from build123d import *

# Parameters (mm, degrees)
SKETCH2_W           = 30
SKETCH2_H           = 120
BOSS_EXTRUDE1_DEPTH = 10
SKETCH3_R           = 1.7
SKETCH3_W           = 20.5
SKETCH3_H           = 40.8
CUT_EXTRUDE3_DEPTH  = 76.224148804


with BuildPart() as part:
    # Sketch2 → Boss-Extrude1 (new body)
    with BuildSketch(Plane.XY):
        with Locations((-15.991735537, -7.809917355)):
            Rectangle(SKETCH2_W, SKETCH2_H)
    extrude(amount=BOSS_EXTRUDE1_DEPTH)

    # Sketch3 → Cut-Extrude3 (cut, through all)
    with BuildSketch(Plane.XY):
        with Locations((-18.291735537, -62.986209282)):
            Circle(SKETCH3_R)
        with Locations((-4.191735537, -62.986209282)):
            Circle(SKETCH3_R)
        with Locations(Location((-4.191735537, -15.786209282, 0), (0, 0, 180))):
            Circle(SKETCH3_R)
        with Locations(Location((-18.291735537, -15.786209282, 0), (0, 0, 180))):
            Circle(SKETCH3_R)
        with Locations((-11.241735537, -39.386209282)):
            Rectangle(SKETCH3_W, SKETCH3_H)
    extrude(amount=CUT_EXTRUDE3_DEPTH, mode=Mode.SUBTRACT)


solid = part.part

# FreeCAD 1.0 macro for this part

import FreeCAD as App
import Part
import Sketcher
from FreeCAD import Vector
Q = App.Units.Quantity

doc = App.newDocument("Part")
body = doc.addObject("PartDesign::Body", "Body")

sketch1 = body.newObject("Sketcher::SketchObject", "Sketch")
sketch1.AttachmentSupport = (doc.getObject("XY_Plane"), [""])
sketch1.MapMode = "FlatFace"
sketch1.addGeometry([
    Part.LineSegment(Vector(-31, 52, 0), Vector(-31, -68, 0)),
    Part.LineSegment(Vector(-31, -68, 0), Vector(-1, -68, 0)),
    Part.LineSegment(Vector(-1, -68, 0), Vector(-1, 52, 0)),
    Part.LineSegment(Vector(-1, 52, 0), Vector(-31, 52, 0)),
], False)
sketch1.addConstraint([
    Sketcher.Constraint("Coincident", 0, 2, 1, 1),
    Sketcher.Constraint("Coincident", 1, 2, 2, 1),
    Sketcher.Constraint("Coincident", 2, 2, 3, 1),
    Sketcher.Constraint("Coincident", 3, 2, 0, 1),
    Sketcher.Constraint("Vertical", 0),
    Sketcher.Constraint("Horizontal", 1),
    Sketcher.Constraint("Vertical", 2),
    Sketcher.Constraint("Horizontal", 3),
    Sketcher.Constraint("DistanceX", 1, 1, 1, 2, Q("30 mm")),
    Sketcher.Constraint("DistanceY", 0, 2, 0, 1, Q("120 mm")),
    Sketcher.Constraint("DistanceX", 0, 2, -1, 1, Q("30.991736 mm")),
    Sketcher.Constraint("DistanceY", 0, 2, -1, 1, Q("67.809917 mm")),
])
pad1 = body.newObject("PartDesign::Pad", "Pad")
pad1.Profile = sketch1
pad1.Length = 10

sketch2 = body.newObject("Sketcher::SketchObject", "Sketch001")
sketch2.AttachmentSupport = (doc.getObject("XY_Plane"), [""])
sketch2.MapMode = "FlatFace"
sketch2.addGeometry([
    Part.Circle(Vector(-18.3, -63, 0), Vector(0, 0, 1), 1.7),
    Part.Circle(Vector(-4.2, -63, 0), Vector(0, 0, 1), 1.7),
    Part.Circle(Vector(-4.2, -15.8, 0), Vector(0, 0, 1), 1.7),
    Part.Circle(Vector(-18.3, -15.8, 0), Vector(0, 0, 1), 1.7),
    Part.LineSegment(Vector(-21.5, -19, 0), Vector(-21.5, -59.8, 0)),
    Part.LineSegment(Vector(-21.5, -59.8, 0), Vector(-1, -59.8, 0)),
    Part.LineSegment(Vector(-1, -59.8, 0), Vector(-1, -19, 0)),
    Part.LineSegment(Vector(-1, -19, 0), Vector(-21.5, -19, 0)),
], False)
sketch2.addConstraint([
    Sketcher.Constraint("Coincident", 4, 2, 5, 1),
    Sketcher.Constraint("Coincident", 5, 2, 6, 1),
    Sketcher.Constraint("Coincident", 6, 2, 7, 1),
    Sketcher.Constraint("Coincident", 7, 2, 4, 1),
    Sketcher.Constraint("Vertical", 4),
    Sketcher.Constraint("Horizontal", 5),
    Sketcher.Constraint("Vertical", 6),
    Sketcher.Constraint("Horizontal", 7),
    Sketcher.Constraint("Equal", 0, 1),
    Sketcher.Constraint("Equal", 1, 2),
    Sketcher.Constraint("Equal", 2, 3),
    Sketcher.Constraint("Horizontal", 0, 3, 1, 3),
    Sketcher.Constraint("Horizontal", 2, 3, 3, 3),
    Sketcher.Constraint("Vertical", 1, 3, 2, 3),
    Sketcher.Constraint("Vertical", 0, 3, 3, 3),
    Sketcher.Constraint("Diameter", 0, Q("3.4 mm")),
    Sketcher.Constraint("DistanceX", 5, 1, 5, 2, Q("20.5 mm")),
    Sketcher.Constraint("DistanceY", 4, 2, 4, 1, Q("40.8 mm")),
    Sketcher.Constraint("DistanceY", 4, 2, 3, 3, Q("44 mm")),
    Sketcher.Constraint("DistanceY", 1, 3, 6, 2, Q("44 mm")),
    Sketcher.Constraint("DistanceX", 0, 3, 1, 3, Q("14.1 mm")),
    Sketcher.Constraint("DistanceX", 4, 2, 0, 3, Q("3.2 mm")),
    Sketcher.Constraint("DistanceY", 0, 3, -1, 1, Q("62.986209 mm")),
    Sketcher.Constraint("DistanceX", 0, 3, -1, 1, Q("18.291736 mm")),
])
pocket1 = body.newObject("PartDesign::Pocket", "Pocket")
pocket1.Profile = sketch2
pocket1.Type = "ThroughAll"
pocket1.Reversed = True

doc.recompute()
